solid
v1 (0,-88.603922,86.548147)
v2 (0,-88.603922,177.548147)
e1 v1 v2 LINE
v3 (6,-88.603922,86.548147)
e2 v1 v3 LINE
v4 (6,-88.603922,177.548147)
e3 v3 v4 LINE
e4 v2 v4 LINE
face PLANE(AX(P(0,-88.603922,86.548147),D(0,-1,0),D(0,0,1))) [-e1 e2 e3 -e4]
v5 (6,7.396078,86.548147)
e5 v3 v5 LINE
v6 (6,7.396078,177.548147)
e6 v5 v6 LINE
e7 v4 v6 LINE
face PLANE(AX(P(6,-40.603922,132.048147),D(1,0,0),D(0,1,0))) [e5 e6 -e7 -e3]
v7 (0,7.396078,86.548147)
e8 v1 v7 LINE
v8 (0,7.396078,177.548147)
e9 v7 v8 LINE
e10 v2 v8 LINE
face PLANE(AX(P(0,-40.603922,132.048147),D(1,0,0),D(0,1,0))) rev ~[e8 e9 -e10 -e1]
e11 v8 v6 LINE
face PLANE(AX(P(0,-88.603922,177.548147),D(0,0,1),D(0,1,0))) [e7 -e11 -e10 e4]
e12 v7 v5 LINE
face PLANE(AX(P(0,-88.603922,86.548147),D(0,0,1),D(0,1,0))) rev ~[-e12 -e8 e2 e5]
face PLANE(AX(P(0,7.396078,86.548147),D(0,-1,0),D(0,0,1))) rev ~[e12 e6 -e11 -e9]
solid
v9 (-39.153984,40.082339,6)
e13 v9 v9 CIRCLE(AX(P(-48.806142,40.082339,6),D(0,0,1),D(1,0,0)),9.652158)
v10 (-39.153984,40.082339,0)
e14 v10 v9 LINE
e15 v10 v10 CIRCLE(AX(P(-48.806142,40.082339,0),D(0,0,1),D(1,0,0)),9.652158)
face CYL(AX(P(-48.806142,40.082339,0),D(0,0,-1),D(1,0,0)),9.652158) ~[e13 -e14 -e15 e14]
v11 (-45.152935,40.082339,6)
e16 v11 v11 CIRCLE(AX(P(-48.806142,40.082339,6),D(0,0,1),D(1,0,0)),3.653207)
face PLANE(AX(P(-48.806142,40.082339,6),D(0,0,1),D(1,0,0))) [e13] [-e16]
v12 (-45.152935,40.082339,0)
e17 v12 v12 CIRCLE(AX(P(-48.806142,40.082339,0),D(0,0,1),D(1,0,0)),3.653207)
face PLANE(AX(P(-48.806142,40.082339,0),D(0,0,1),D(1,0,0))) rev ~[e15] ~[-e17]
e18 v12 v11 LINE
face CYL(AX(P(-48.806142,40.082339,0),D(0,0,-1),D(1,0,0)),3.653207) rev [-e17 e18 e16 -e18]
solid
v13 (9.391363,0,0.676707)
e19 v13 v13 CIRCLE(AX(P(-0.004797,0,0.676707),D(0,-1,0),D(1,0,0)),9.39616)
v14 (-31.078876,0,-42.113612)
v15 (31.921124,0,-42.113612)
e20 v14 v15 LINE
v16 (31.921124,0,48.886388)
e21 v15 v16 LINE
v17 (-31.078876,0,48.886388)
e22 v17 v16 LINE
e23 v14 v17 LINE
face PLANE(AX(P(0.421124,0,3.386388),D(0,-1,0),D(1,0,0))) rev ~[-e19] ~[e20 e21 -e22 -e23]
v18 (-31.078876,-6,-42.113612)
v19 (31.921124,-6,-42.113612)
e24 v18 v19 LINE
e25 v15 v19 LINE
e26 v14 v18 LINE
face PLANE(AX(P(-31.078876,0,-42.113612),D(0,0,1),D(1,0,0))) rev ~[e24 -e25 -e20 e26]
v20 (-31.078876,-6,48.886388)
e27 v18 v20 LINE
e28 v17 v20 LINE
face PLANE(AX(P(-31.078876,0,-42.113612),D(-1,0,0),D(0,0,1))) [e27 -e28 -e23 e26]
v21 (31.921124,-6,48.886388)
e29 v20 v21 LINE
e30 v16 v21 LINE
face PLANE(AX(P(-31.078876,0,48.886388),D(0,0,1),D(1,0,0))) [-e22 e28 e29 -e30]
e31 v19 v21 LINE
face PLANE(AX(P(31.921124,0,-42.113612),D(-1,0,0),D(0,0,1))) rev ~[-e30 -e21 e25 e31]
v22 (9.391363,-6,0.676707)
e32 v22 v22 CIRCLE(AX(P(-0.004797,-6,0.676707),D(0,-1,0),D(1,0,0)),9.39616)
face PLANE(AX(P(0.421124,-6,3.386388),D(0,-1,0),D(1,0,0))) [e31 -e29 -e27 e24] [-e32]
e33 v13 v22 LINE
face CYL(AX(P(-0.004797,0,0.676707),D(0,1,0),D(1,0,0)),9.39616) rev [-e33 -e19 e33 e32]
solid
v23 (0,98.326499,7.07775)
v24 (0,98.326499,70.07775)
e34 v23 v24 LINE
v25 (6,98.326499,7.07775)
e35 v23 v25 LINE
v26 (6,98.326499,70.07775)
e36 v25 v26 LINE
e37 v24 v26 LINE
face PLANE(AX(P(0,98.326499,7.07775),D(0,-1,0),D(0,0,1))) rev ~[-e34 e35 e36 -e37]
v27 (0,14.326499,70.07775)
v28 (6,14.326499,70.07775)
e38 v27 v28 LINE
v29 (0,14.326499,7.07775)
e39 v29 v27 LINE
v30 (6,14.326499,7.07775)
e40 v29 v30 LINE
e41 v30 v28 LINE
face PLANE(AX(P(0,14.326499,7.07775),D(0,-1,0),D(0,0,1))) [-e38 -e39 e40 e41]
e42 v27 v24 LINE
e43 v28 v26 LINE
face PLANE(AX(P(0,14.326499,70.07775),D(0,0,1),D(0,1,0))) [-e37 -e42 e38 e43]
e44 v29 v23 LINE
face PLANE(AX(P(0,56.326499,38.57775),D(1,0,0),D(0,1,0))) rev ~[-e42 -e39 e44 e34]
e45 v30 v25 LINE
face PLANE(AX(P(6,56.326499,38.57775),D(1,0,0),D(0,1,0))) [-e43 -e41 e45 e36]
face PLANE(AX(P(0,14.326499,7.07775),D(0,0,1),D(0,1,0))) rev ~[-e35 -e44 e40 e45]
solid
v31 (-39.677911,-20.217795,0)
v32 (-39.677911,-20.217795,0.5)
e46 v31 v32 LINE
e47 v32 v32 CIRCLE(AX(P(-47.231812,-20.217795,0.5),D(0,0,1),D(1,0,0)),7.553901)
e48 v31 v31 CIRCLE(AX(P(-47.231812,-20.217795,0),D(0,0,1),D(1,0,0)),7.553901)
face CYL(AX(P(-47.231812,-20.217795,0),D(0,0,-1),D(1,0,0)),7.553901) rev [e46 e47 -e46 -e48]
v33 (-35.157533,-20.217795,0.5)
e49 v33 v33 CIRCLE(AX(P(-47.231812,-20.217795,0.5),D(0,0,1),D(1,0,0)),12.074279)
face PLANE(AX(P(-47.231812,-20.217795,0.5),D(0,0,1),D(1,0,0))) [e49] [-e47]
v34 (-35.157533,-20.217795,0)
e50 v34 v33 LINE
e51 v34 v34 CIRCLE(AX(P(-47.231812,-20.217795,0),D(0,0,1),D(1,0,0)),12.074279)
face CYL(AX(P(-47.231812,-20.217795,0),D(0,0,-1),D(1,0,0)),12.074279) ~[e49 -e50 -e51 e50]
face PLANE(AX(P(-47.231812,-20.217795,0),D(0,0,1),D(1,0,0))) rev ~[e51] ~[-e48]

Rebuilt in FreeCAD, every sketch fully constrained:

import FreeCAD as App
import Part
import Sketcher
Q = App.Units.Quantity


def add_polygon(sketch, points):
    """Adds a closed chain of lines whose ends are joined by coincident constraints."""
    first, n = sketch.GeometryCount, len(points)
    for a, b in zip(points, points[1:] + points[:1]):
        sketch.addGeometry(Part.LineSegment(App.Vector(*a, 0), App.Vector(*b, 0)), False)
    for i in range(n):
        sketch.addConstraint(Sketcher.Constraint("Coincident", first + i, 2, first + (i + 1) % n, 1))

doc = App.newDocument("Part")
body = doc.addObject("PartDesign::Body", "Body")

# Sketch on XZ plane
sketch1 = body.newObject("Sketcher::SketchObject", "Sketch")
sketch1.AttachmentSupport = (doc.getObject("XZ_Plane"), [""])
sketch1.MapMode = "FlatFace"
add_polygon(sketch1, [(-31, 49), (-31, -42), (32, -42), (32, 49)])  # lines 0-3
sketch1.addGeometry(Part.Circle(App.Vector(0, 1, 0), App.Vector(0, 0, 1), 9), False)  # 4
sketch1.addConstraint([
    Sketcher.Constraint("Vertical", 0),
    Sketcher.Constraint("Horizontal", 1),
    Sketcher.Constraint("Vertical", 2),
    Sketcher.Constraint("Horizontal", 3),
    Sketcher.Constraint("DistanceX", 1, 1, 1, 2, Q("63 mm")),
    Sketcher.Constraint("DistanceY", 0, 2, 0, 1, Q("91 mm")),
    Sketcher.Constraint("Diameter", 4, Q("18.79232 mm")),
    Sketcher.Constraint("DistanceX", 0, 2, 4, 3, Q("31.074079 mm")),
    Sketcher.Constraint("DistanceY", 0, 2, 4, 3, Q("42.790319 mm")),
    Sketcher.Constraint("DistanceX", 4, 3, -1, 1, Q("0.004797 mm")),
    Sketcher.Constraint("DistanceY", -1, 1, 4, 3, Q("0.676707 mm")),
])
pad1 = body.newObject("PartDesign::Pad", "Pad")
pad1.Profile = sketch1
pad1.Length = 6
body2 = doc.addObject("PartDesign::Body", "Body001")

# Sketch on YZ plane
sketch2 = body2.newObject("Sketcher::SketchObject", "Sketch001")
sketch2.AttachmentSupport = (doc.getObject("YZ_Plane001"), [""])
sketch2.MapMode = "FlatFace"
add_polygon(sketch2, [(-89, 178), (-89, 87), (7, 87), (7, 178)])  # lines 0-3
sketch2.addConstraint([
    Sketcher.Constraint("Vertical", 0),
    Sketcher.Constraint("Horizontal", 1),
    Sketcher.Constraint("Vertical", 2),
    Sketcher.Constraint("Horizontal", 3),
    Sketcher.Constraint("DistanceX", 1, 1, 1, 2, Q("96 mm")),
    Sketcher.Constraint("DistanceY", 0, 2, 0, 1, Q("91 mm")),
    Sketcher.Constraint("DistanceX", 0, 2, -1, 1, Q("88.603922 mm")),
    Sketcher.Constraint("DistanceY", -1, 1, 0, 2, Q("86.548147 mm")),
])
pad2 = body2.newObject("PartDesign::Pad", "Pad001")
pad2.Profile = sketch2
pad2.Length = 6
body3 = doc.addObject("PartDesign::Body", "Body002")

# Sketch on XY plane
sketch3 = body3.newObject("Sketcher::SketchObject", "Sketch002")
sketch3.AttachmentSupport = (doc.getObject("XY_Plane002"), [""])
sketch3.MapMode = "FlatFace"
sketch3.addGeometry([
    Part.Circle(App.Vector(-48.8, 40.1, 0), App.Vector(0, 0, 1), 9.7),
    Part.Circle(App.Vector(-48.8, 40.1, 0), App.Vector(0, 0, 1), 3.7),
], False)
sketch3.addConstraint([
    Sketcher.Constraint("Coincident", 1, 3, 0, 3),
    Sketcher.Constraint("Diameter", 0, Q("19.304316 mm")),
    Sketcher.Constraint("Diameter", 1, Q("7.306414 mm")),
    Sketcher.Constraint("DistanceY", -1, 1, 0, 3, Q("40.082339 mm")),
    Sketcher.Constraint("DistanceX", 0, 3, -1, 1, Q("48.806142 mm")),
])
pad3 = body3.newObject("PartDesign::Pad", "Pad002")
pad3.Profile = sketch3
pad3.Length = 6
body4 = doc.addObject("PartDesign::Body", "Body003")

# Sketch on YZ plane
sketch4 = body4.newObject("Sketcher::SketchObject", "Sketch003")
sketch4.AttachmentSupport = (doc.getObject("YZ_Plane003"), [""])
sketch4.MapMode = "FlatFace"
add_polygon(sketch4, [(14, 70), (14, 7), (98, 7), (98, 70)])  # lines 0-3
sketch4.addConstraint([
    Sketcher.Constraint("Vertical", 0),
    Sketcher.Constraint("Horizontal", 1),
    Sketcher.Constraint("Vertical", 2),
    Sketcher.Constraint("Horizontal", 3),
    Sketcher.Constraint("DistanceX", 1, 1, 1, 2, Q("84 mm")),
    Sketcher.Constraint("DistanceY", 0, 2, 0, 1, Q("63 mm")),
    Sketcher.Constraint("DistanceX", -1, 1, 0, 2, Q("14.326499 mm")),
    Sketcher.Constraint("DistanceY", -1, 1, 0, 2, Q("7.07775 mm")),
])
pad4 = body4.newObject("PartDesign::Pad", "Pad003")
pad4.Profile = sketch4
pad4.Length = 6
body5 = doc.addObject("PartDesign::Body", "Body004")

# Sketch on XY plane
sketch5 = body5.newObject("Sketcher::SketchObject", "Sketch004")
sketch5.AttachmentSupport = (doc.getObject("XY_Plane004"), [""])
sketch5.MapMode = "FlatFace"
sketch5.addGeometry([
    Part.Circle(App.Vector(-47, -20, 0), App.Vector(0, 0, 1), 12),
    Part.Circle(App.Vector(-47, -20, 0), App.Vector(0, 0, 1), 8),
], False)
sketch5.addConstraint([
    Sketcher.Constraint("Coincident", 1, 3, 0, 3),
    Sketcher.Constraint("Diameter", 0, Q("24.148558 mm")),
    Sketcher.Constraint("Diameter", 1, Q("15.107802 mm")),
    Sketcher.Constraint("DistanceX", 0, 3, -1, 1, Q("47.231812 mm")),
    Sketcher.Constraint("DistanceY", 0, 3, -1, 1, Q("20.217795 mm")),
])
pad5 = body5.newObject("PartDesign::Pad", "Pad004")
pad5.Profile = sketch5
pad5.Length = 0.5

doc.recompute()
